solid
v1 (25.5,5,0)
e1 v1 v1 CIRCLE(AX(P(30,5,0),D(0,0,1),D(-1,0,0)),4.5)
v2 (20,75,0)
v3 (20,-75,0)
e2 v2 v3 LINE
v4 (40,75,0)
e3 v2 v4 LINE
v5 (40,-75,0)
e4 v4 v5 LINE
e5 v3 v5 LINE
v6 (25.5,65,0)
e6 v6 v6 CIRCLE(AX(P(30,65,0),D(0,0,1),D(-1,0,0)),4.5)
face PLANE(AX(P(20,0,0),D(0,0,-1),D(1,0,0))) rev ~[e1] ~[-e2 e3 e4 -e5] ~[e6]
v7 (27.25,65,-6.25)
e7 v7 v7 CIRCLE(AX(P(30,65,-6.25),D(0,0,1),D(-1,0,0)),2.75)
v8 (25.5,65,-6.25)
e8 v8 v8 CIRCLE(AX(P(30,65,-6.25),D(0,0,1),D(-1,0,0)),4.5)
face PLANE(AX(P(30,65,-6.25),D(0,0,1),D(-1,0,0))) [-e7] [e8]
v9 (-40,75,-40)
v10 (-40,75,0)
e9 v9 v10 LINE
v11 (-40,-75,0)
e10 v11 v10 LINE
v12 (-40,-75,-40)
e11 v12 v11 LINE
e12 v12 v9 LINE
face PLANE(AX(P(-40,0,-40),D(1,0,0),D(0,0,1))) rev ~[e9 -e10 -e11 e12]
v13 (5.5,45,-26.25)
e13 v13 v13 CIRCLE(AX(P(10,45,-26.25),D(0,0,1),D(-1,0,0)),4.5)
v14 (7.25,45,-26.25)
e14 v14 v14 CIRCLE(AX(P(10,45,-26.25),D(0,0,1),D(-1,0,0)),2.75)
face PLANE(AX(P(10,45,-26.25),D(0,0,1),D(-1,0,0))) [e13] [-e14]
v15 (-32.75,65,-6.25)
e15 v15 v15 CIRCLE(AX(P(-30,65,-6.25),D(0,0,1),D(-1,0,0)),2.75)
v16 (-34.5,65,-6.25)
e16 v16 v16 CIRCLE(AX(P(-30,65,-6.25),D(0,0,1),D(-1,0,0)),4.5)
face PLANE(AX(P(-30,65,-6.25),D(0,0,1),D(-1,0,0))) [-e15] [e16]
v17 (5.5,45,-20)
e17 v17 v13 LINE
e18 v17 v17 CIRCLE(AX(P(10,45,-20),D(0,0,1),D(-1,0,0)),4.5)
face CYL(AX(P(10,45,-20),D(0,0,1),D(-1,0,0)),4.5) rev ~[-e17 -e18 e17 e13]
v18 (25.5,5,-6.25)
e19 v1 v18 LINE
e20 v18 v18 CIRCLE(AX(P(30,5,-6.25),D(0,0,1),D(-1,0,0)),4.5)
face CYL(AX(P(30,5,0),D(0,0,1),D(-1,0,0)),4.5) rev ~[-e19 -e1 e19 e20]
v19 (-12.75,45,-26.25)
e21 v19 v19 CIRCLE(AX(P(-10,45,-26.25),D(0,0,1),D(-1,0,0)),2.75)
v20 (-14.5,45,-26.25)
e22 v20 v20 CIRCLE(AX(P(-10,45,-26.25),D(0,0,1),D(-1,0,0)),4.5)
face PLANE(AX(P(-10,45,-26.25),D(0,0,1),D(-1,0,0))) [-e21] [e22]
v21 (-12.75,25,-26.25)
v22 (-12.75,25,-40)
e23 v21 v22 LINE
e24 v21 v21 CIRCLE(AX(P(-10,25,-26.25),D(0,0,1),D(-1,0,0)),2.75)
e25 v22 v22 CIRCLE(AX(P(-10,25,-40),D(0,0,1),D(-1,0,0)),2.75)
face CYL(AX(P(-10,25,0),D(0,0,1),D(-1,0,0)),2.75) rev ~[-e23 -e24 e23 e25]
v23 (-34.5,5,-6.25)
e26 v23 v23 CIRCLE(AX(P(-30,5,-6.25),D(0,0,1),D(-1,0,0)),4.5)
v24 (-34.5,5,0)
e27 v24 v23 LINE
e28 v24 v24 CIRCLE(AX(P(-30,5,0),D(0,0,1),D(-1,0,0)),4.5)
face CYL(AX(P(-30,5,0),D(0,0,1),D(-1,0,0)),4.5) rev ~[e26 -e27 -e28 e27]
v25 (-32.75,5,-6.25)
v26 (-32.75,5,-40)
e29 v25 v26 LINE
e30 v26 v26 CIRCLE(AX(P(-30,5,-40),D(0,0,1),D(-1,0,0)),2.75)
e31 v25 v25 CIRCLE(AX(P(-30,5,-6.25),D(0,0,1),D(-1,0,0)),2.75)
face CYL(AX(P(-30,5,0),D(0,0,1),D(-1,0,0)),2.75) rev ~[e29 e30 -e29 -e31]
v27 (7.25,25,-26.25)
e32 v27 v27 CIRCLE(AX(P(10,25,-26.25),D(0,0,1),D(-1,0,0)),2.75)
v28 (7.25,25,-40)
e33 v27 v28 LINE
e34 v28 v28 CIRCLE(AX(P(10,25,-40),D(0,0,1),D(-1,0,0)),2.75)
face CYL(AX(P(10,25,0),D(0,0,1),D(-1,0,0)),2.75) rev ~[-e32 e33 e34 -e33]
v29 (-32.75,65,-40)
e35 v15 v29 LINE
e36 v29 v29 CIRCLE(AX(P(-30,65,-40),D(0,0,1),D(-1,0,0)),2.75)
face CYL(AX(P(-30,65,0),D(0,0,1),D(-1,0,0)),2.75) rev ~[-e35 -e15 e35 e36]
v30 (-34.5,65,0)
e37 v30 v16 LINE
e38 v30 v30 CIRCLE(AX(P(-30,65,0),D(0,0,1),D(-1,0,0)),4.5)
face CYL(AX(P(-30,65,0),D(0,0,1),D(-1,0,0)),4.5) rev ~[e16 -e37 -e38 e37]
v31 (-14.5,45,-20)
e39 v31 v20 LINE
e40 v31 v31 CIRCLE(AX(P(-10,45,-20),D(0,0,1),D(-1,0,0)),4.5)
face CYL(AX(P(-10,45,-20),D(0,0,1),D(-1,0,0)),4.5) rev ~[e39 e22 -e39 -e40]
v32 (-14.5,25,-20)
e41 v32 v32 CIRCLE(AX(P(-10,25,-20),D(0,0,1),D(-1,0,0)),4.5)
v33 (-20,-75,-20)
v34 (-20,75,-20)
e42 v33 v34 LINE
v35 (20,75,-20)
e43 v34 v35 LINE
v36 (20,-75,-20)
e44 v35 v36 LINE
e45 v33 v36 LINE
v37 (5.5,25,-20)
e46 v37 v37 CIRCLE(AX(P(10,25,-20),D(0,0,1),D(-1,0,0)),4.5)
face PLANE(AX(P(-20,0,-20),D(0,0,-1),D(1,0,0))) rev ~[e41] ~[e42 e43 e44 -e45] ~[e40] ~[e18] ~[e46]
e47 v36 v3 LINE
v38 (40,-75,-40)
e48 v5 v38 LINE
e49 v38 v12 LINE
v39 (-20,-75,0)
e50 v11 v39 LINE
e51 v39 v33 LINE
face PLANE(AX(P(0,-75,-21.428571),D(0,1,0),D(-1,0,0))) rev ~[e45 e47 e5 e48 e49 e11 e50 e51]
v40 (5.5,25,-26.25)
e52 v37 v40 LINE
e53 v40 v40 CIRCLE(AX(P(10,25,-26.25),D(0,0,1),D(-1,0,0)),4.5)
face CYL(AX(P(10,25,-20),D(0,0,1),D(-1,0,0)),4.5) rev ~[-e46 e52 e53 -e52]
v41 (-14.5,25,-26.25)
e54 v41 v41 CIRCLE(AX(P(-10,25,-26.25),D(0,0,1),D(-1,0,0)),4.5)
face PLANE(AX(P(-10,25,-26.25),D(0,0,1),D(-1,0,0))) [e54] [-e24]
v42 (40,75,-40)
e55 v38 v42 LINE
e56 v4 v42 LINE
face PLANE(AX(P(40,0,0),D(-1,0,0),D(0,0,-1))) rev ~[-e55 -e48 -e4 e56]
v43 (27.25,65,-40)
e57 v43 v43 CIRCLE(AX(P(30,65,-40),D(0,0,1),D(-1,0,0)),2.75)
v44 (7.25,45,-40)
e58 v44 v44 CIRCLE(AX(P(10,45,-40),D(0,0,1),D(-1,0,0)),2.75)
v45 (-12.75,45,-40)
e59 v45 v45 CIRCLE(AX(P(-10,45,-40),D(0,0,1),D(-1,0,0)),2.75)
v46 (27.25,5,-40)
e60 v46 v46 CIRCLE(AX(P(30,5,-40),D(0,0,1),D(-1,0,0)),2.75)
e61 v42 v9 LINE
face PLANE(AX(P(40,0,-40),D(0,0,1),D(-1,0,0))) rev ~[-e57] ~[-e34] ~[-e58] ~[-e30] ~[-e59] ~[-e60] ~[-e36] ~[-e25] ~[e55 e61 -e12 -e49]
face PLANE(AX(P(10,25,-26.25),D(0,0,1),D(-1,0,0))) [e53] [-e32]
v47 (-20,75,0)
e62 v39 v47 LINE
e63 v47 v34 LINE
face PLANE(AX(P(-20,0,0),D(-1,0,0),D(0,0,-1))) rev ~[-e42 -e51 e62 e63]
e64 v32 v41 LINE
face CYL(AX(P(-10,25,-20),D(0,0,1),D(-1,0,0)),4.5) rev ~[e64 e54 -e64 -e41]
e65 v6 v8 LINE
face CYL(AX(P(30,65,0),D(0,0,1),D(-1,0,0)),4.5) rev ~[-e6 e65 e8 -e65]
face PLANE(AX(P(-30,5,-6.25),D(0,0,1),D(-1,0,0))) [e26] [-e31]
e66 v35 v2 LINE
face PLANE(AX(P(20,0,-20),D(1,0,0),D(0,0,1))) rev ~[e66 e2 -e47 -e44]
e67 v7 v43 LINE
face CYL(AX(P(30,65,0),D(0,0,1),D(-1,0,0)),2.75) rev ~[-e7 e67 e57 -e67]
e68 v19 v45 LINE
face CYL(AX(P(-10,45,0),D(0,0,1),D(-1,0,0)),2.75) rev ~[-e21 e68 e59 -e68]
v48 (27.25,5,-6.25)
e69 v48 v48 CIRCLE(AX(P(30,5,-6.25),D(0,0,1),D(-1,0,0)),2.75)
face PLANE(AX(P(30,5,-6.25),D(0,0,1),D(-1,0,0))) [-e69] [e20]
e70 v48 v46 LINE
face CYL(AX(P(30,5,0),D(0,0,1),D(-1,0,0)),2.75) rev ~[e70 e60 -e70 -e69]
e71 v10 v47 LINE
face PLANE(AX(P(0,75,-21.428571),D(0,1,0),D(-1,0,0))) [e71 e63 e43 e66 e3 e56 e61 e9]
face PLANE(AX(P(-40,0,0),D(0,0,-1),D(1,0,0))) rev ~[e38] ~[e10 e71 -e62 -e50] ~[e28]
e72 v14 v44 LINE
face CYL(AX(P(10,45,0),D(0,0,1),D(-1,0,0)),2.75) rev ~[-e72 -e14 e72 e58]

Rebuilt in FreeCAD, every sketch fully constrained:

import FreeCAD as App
import Part
import Sketcher
from FreeCAD import Vector


def add_polygon(sketch, points):
    """Adds a closed chain of lines whose ends are joined by coincident constraints."""
    first, n = sketch.GeometryCount, len(points)
    for a, b in zip(points, points[1:] + points[:1]):
        sketch.addGeometry(Part.LineSegment(App.Vector(*a, 0), App.Vector(*b, 0)), False)
    for i in range(n):
        sketch.addConstraint(Sketcher.Constraint("Coincident", first + i, 2, first + (i + 1) % n, 1))

doc = App.newDocument("Part")
body = doc.addObject("PartDesign::Body", "Body")

# Sketch on XZ plane
sketch1 = body.newObject("Sketcher::SketchObject", "Sketch")
sketch1.AttachmentSupport = (doc.getObject("XZ_Plane"), [""])
sketch1.MapMode = "FlatFace"
add_polygon(sketch1, [(40, -40), (40, 0), (20, 0), (20, -20), (-20, -20), (-20, 0), (-40, 0), (-40, -40)])  # lines 0-7
sketch1.addConstraint([
    Sketcher.Constraint("Vertical", 0),
    Sketcher.Constraint("Horizontal", 1),
    Sketcher.Constraint("Vertical", 2),
    Sketcher.Constraint("Horizontal", 3),
    Sketcher.Constraint("Vertical", 4),
    Sketcher.Constraint("Horizontal", 5),
    Sketcher.Constraint("Vertical", 6),
    Sketcher.Constraint("Horizontal", 7),
    Sketcher.Constraint("Symmetric", 1, 2, 4, 2, -1, 1),
    Sketcher.Constraint("Symmetric", 0, 2, 5, 2, -2),
    Sketcher.Constraint("Equal", 3, 0),
    Sketcher.Constraint("Equal", 5, 2),
    Sketcher.Constraint("DistanceX", 1, 2, 1, 1, 20.0),
    Sketcher.Constraint("DistanceX", 3, 2, 3, 1, 40.0),
])
pad1 = body.newObject("PartDesign::Pad", "Pad")
pad1.Profile = sketch1
pad1.Length = 150
pad1.Midplane = True

# Sketch on XY plane
sketch2 = body.newObject("Sketcher::SketchObject", "Sketch001")
sketch2.AttachmentSupport = (doc.getObject("XY_Plane"), [""])
sketch2.MapMode = "FlatFace"
sketch2.addGeometry([
    Part.Circle(Vector(30, 65, 0), Vector(0, 0, 1), 2.8),  # 0
    Part.Circle(Vector(-30, 65, 0), Vector(0, 0, 1), 2.8),  # 1
    Part.Circle(Vector(30, 5, 0), Vector(0, 0, 1), 2.8),  # 2
    Part.Circle(Vector(-30, 5, 0), Vector(0, 0, 1), 2.8),  # 3
    Part.Circle(Vector(10, 25, 0), Vector(0, 0, 1), 2.8),  # 4
    Part.Circle(Vector(-10, 25, 0), Vector(0, 0, 1), 2.8),  # 5
    Part.Circle(Vector(10, 45, 0), Vector(0, 0, 1), 2.8),  # 6
    Part.Circle(Vector(-10, 45, 0), Vector(0, 0, 1), 2.8),  # 7
], False)
sketch2.addConstraint([
    Sketcher.Constraint("Equal", 0, 1),
    Sketcher.Constraint("Equal", 1, 2),
    Sketcher.Constraint("Equal", 2, 3),
    Sketcher.Constraint("Equal", 3, 4),
    Sketcher.Constraint("Equal", 4, 5),
    Sketcher.Constraint("Equal", 5, 6),
    Sketcher.Constraint("Equal", 6, 7),
    Sketcher.Constraint("Symmetric", 0, 3, 1, 3, -2),
    Sketcher.Constraint("Symmetric", 2, 3, 3, 3, -2),
    Sketcher.Constraint("Symmetric", 4, 3, 5, 3, -2),
    Sketcher.Constraint("Symmetric", 6, 3, 7, 3, -2),
    Sketcher.Constraint("Vertical", 0, 3, 2, 3),
    Sketcher.Constraint("Vertical", 4, 3, 6, 3),
    Sketcher.Constraint("Diameter", 0, 5.5),
    Sketcher.Constraint("DistanceX", -1, 1, 0, 3, 30.0),
    Sketcher.Constraint("DistanceY", -1, 1, 0, 3, 65.0),
    Sketcher.Constraint("DistanceY", -1, 1, 2, 3, 5.0),
    Sketcher.Constraint("DistanceX", -1, 1, 4, 3, 10.0),
    Sketcher.Constraint("DistanceY", -1, 1, 4, 3, 25.0),
    Sketcher.Constraint("DistanceY", -1, 1, 6, 3, 45.0),
])
pocket1 = body.newObject("PartDesign::Pocket", "Pocket")
pocket1.Profile = sketch2
pocket1.Type = "ThroughAll"

# Sketch on XY plane
sketch3 = body.newObject("Sketcher::SketchObject", "Sketch002")
sketch3.AttachmentSupport = (doc.getObject("XY_Plane"), [""])
sketch3.MapMode = "FlatFace"
sketch3.addGeometry([
    Part.Circle(Vector(30, 65, 0), Vector(0, 0, 1), 4.5),
    Part.Circle(Vector(30, 5, 0), Vector(0, 0, 1), 4.5),
    Part.Circle(Vector(-30, 5, 0), Vector(0, 0, 1), 4.5),
    Part.Circle(Vector(-30, 65, 0), Vector(0, 0, 1), 4.5),
], False)
sketch3.addConstraint([
    Sketcher.Constraint("Equal", 0, 1),
    Sketcher.Constraint("Equal", 1, 2),
    Sketcher.Constraint("Equal", 2, 3),
    Sketcher.Constraint("Symmetric", 1, 3, 2, 3, -2),
    Sketcher.Constraint("Symmetric", 0, 3, 3, 3, -2),
    Sketcher.Constraint("Vertical", 0, 3, 1, 3),
    Sketcher.Constraint("Diameter", 0, 9.0),
    Sketcher.Constraint("DistanceX", -1, 1, 0, 3, 30.0),
    Sketcher.Constraint("DistanceY", -1, 1, 0, 3, 65.0),
    Sketcher.Constraint("DistanceY", -1, 1, 1, 3, 5.0),
])
pocket2 = body.newObject("PartDesign::Pocket", "Pocket001")
pocket2.Profile = sketch3
pocket2.Length = 6.25

# Sketch on XY plane
sketch4 = body.newObject("Sketcher::SketchObject", "Sketch003")
sketch4.AttachmentSupport = (doc.getObject("XY_Plane"), [""])
sketch4.MapMode = "FlatFace"
sketch4.AttachmentOffset = App.Placement(Vector(0, 0, -20), App.Rotation())
sketch4.addGeometry([
    Part.Circle(Vector(10, 45, 0), Vector(0, 0, 1), 4.5),
    Part.Circle(Vector(10, 25, 0), Vector(0, 0, 1), 4.5),
    Part.Circle(Vector(-10, 25, 0), Vector(0, 0, 1), 4.5),
    Part.Circle(Vector(-10, 45, 0), Vector(0, 0, 1), 4.5),
], False)
sketch4.addConstraint([
    Sketcher.Constraint("Equal", 0, 1),
    Sketcher.Constraint("Equal", 1, 2),
    Sketcher.Constraint("Equal", 2, 3),
    Sketcher.Constraint("Symmetric", 1, 3, 2, 3, -2),
    Sketcher.Constraint("Symmetric", 0, 3, 3, 3, -2),
    Sketcher.Constraint("Vertical", 0, 3, 1, 3),
    Sketcher.Constraint("Diameter", 0, 9.0),
    Sketcher.Constraint("DistanceX", -1, 1, 0, 3, 10.0),
    Sketcher.Constraint("DistanceY", -1, 1, 0, 3, 45.0),
    Sketcher.Constraint("DistanceY", -1, 1, 1, 3, 25.0),
])
pocket3 = body.newObject("PartDesign::Pocket", "Pocket002")
pocket3.Profile = sketch4
pocket3.Length = 6.25

doc.recompute()
